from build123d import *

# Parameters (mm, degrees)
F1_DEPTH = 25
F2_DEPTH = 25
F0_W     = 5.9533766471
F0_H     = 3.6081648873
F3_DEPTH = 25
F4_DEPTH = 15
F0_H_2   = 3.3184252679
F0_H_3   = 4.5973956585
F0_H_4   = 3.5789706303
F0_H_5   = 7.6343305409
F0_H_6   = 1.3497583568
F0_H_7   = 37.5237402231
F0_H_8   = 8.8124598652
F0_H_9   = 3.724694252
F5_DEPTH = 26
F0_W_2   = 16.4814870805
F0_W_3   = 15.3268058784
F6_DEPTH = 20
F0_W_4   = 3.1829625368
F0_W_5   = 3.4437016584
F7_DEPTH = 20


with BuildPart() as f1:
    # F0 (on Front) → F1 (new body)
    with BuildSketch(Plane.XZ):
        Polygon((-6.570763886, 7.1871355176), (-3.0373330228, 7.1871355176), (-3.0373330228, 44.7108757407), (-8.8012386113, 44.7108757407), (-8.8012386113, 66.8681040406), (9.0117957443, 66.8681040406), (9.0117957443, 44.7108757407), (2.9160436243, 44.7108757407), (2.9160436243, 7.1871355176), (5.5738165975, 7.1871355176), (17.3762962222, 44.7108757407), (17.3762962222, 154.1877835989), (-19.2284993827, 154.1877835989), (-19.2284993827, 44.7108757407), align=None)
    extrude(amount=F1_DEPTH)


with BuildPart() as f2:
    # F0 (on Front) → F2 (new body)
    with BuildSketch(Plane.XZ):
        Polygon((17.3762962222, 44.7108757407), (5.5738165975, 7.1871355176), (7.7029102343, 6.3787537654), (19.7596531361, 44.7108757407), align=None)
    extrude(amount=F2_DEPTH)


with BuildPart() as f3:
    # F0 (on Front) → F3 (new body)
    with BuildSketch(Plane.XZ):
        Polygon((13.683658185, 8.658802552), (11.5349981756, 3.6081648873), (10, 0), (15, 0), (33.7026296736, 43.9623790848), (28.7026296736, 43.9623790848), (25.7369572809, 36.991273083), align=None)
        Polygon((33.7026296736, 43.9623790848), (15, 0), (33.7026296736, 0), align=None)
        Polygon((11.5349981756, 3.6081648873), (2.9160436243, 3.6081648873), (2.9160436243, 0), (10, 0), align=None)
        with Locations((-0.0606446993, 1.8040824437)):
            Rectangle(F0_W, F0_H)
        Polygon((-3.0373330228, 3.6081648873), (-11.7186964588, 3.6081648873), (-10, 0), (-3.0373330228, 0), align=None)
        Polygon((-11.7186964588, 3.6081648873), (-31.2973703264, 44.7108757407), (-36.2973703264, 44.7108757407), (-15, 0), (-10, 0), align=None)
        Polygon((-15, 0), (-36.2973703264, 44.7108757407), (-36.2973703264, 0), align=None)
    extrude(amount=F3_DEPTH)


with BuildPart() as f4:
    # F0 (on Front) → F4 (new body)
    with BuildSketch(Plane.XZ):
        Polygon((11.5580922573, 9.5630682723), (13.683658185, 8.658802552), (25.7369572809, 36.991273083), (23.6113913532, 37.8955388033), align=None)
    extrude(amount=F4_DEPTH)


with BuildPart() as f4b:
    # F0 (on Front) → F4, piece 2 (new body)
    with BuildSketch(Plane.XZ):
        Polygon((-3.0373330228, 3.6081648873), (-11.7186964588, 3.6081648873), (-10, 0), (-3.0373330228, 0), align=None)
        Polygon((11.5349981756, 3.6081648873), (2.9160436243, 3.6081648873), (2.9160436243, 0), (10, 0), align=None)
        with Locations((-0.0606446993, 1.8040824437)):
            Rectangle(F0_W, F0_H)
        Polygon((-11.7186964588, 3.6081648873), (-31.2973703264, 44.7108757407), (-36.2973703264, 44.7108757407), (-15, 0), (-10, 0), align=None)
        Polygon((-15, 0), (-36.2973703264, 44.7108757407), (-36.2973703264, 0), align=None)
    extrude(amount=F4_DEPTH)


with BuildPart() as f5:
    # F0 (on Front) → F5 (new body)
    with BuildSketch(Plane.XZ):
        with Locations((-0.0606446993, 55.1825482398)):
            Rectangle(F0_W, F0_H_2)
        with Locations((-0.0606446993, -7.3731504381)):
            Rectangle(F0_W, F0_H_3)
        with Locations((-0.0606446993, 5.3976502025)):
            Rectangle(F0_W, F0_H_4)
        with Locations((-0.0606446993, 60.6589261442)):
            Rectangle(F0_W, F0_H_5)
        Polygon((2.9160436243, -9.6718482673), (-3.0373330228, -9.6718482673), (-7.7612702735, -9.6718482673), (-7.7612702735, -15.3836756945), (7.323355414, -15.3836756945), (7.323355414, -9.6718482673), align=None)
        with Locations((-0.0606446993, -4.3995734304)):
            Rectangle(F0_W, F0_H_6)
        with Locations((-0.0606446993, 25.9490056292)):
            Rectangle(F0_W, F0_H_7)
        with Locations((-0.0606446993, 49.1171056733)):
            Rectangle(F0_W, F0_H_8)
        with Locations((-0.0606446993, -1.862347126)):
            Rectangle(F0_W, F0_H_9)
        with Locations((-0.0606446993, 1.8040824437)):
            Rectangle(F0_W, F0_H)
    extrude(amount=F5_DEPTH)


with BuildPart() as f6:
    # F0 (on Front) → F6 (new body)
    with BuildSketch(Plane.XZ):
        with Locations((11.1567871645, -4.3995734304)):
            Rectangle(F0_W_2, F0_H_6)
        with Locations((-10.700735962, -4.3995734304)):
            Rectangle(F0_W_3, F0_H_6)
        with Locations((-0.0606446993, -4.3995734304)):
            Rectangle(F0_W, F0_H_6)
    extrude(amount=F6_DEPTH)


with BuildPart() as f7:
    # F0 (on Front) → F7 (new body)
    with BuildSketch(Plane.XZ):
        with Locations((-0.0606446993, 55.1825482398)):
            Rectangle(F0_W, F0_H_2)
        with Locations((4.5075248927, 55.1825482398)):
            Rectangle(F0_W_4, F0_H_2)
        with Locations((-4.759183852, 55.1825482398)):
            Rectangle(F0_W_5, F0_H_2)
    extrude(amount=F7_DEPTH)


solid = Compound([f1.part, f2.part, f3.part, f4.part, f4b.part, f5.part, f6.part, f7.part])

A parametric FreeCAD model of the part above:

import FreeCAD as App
import Part
import Sketcher


def add_polygon(sketch, points):
    """Adds a closed chain of lines whose ends are joined by coincident constraints."""
    first, n = sketch.GeometryCount, len(points)
    for a, b in zip(points, points[1:] + points[:1]):
        sketch.addGeometry(Part.LineSegment(App.Vector(*a, 0), App.Vector(*b, 0)), False)
    for i in range(n):
        sketch.addConstraint(Sketcher.Constraint("Coincident", first + i, 2, first + (i + 1) % n, 1))

doc = App.newDocument("Part")
params = doc.addObject("Spreadsheet::Sheet", "Params")
for row, (alias, value) in enumerate([
    ("pad1_length", "25 mm"),
    ("pad2_length", "25 mm"),
    ("sketch3_width", "5 mm"),
    ("pad3_length", "25 mm"),
    ("pad4_length", "15 mm"),
    ("sketch5_width", "5 mm"),
    ("pad5_length", "15 mm"),
    ("pad6_length", "26 mm"),
    ("pad7_length", "20 mm"),
    ("pad8_length", "20 mm"),
], start=1):
    params.set(f"A{row}", alias)
    params.set(f"B{row}", "=" + value)
    params.setAlias(f"B{row}", alias)

body = doc.addObject("PartDesign::Body", "Body")

# Sketch on XZ plane
sketch1 = doc.addObject("Sketcher::SketchObject", "Sketch")
body.addObject(sketch1)
sketch1.AttachmentSupport = (doc.XZ_Plane, [""])
sketch1.MapMode = "FlatFace"
add_polygon(sketch1, [(-6.6, 7.2), (-3, 7.2), (-3, 44.7), (-8.8, 44.7), (-8.8, 66.9), (9, 66.9), (9, 44.7), (2.9, 44.7), (2.9, 7.2), (5.6, 7.2), (17.4, 44.7), (17.4, 154.2), (-19.2, 154.2), (-19.2, 44.7)])  # lines 0-13
sketch1.addConstraint(Sketcher.Constraint("Horizontal", 0))
sketch1.addConstraint(Sketcher.Constraint("Vertical", 1))
sketch1.addConstraint(Sketcher.Constraint("Horizontal", 2))
sketch1.addConstraint(Sketcher.Constraint("Vertical", 3))
sketch1.addConstraint(Sketcher.Constraint("Horizontal", 4))
sketch1.addConstraint(Sketcher.Constraint("Vertical", 5))
sketch1.addConstraint(Sketcher.Constraint("Horizontal", 6))
sketch1.addConstraint(Sketcher.Constraint("Vertical", 7))
sketch1.addConstraint(Sketcher.Constraint("Horizontal", 8))
sketch1.addConstraint(Sketcher.Constraint("Vertical", 10))
sketch1.addConstraint(Sketcher.Constraint("Horizontal", 11))
sketch1.addConstraint(Sketcher.Constraint("Vertical", 12))
sketch1.addConstraint(Sketcher.Constraint("Horizontal", 2, 2, 5, 2))
sketch1.addConstraint(Sketcher.Constraint("Horizontal", 0, 2, 7, 2))
sketch1.addConstraint(Sketcher.Constraint("Horizontal", 6, 2, 9, 2))
sketch1.addConstraint(Sketcher.Constraint("Horizontal", 9, 2, 12, 2))
sketch1.addConstraint(Sketcher.Constraint("DistanceX", 0, 1, 0, 2, 3.533431))
sketch1.addConstraint(Sketcher.Constraint("DistanceY", 1, 1, 1, 2, 37.52374))
sketch1.addConstraint(Sketcher.Constraint("DistanceY", 3, 1, 3, 2, 22.157228))
sketch1.addConstraint(Sketcher.Constraint("DistanceX", 11, 2, -1, 1, 19.228499))
sketch1.addConstraint(Sketcher.Constraint("DistanceX", 5, 2, 9, 2, 8.3645))
sketch1.addConstraint(Sketcher.Constraint("Distance", 9, 39.336111))
sketch1.addConstraint(Sketcher.Constraint("Distance", 13, 39.601128))
sketch1.addConstraint(Sketcher.Constraint("DistanceX", 2, 2, 2, 1, 5.763906))
sketch1.addConstraint(Sketcher.Constraint("DistanceX", 4, 1, 4, 2, 17.813034))
sketch1.addConstraint(Sketcher.Constraint("DistanceX", 6, 2, 6, 1, 6.095752))
sketch1.addConstraint(Sketcher.Constraint("DistanceY", 10, 1, 10, 2, 109.476908))
sketch1.addConstraint(Sketcher.Constraint("DistanceY", -1, 1, 0, 2, 7.187136))
pad1 = doc.addObject("PartDesign::Pad", "Pad")
body.addObject(pad1)
pad1.Profile = sketch1
pad1.setExpression("Length", "Params.pad1_length")
body2 = doc.addObject("PartDesign::Body", "Body001")

# Sketch on XZ plane
sketch2 = doc.addObject("Sketcher::SketchObject", "Sketch001")
body2.addObject(sketch2)
sketch2.AttachmentSupport = (doc.getObject("XZ_Plane001"), [""])
sketch2.MapMode = "FlatFace"
add_polygon(sketch2, [(17.4, 44.7), (5.6, 7.2), (7.7, 6.4), (19.8, 44.7)])  # lines 0-3
sketch2.addConstraint(Sketcher.Constraint("Horizontal", 3))
sketch2.addConstraint(Sketcher.Constraint("Parallel", 0, 2))
sketch2.addConstraint(Sketcher.Constraint("Distance", 0, 39.336111))
sketch2.addConstraint(Sketcher.Constraint("DistanceX", 3, 2, 3, 1, 2.383357))
sketch2.addConstraint(Sketcher.Constraint("DistanceX", -1, 1, 1, 2, 7.70291))
sketch2.addConstraint(Sketcher.Constraint("DistanceY", 1, 2, 0, 2, 0.808382))
sketch2.addConstraint(Sketcher.Constraint("DistanceY", 0, 2, 2, 2, 37.52374))
sketch2.addConstraint(Sketcher.Constraint("DistanceY", -1, 1, 0, 2, 7.187136))
pad2 = doc.addObject("PartDesign::Pad", "Pad001")
body2.addObject(pad2)
pad2.Profile = sketch2
pad2.setExpression("Length", "Params.pad2_length")
body3 = doc.addObject("PartDesign::Body", "Body002")

# Sketch on XZ plane
sketch3 = doc.addObject("Sketcher::SketchObject", "Sketch002")
body3.addObject(sketch3)
sketch3.AttachmentSupport = (doc.getObject("XZ_Plane002"), [""])
sketch3.MapMode = "FlatFace"
add_polygon(sketch3, [(14, 9), (12, 4), (3, 4), (-3, 4), (-12, 4), (-31, 45), (-36, 45), (-36, 0), (-15, 0), (-3, 0), (3, 0), (34, 0), (34, 44), (29, 44), (26, 37)])  # lines 0-14
sketch3.addConstraint(Sketcher.Constraint("Horizontal", 1))
sketch3.addConstraint(Sketcher.Constraint("Horizontal", 2))
sketch3.addConstraint(Sketcher.Constraint("Horizontal", 3))
sketch3.addConstraint(Sketcher.Constraint("Horizontal", 5))
sketch3.addConstraint(Sketcher.Constraint("Vertical", 6))
sketch3.addConstraint(Sketcher.Constraint("Horizontal", 7))
sketch3.addConstraint(Sketcher.Constraint("Horizontal", 8))
sketch3.addConstraint(Sketcher.Constraint("Horizontal", 9))
sketch3.addConstraint(Sketcher.Constraint("Horizontal", 10))
sketch3.addConstraint(Sketcher.Constraint("Vertical", 11))
sketch3.addConstraint(Sketcher.Constraint("Horizontal", 12))
sketch3.addConstraint(Sketcher.Constraint("PointOnObject", 6, 2, -1))
sketch3.addConstraint(Sketcher.Constraint("Parallel", 0, 13))
sketch3.addConstraint(Sketcher.Constraint("Parallel", 13, 14))
sketch3.addConstraint(Sketcher.Constraint("Vertical", 2, 2, 8, 2))
sketch3.addConstraint(Sketcher.Constraint("Vertical", 1, 2, 9, 2))
sketch3.addConstraint(Sketcher.Constraint("Equal", 5, 12))
sketch3.addConstraint(Sketcher.Constraint("DistanceX", 5, 2, 5, 1, 5.0))
sketch3.addConstraint(Sketcher.Constraint("DistanceX", 7, 2, -1, 1, 15.0))
sketch3.addConstraint(Sketcher.Constraint("DistanceX", -1, 1, 0, 2, 11.534998))
sketch3.addConstraint(Sketcher.Constraint("DistanceX", 7, 1, 7, 2, 21.29737))
sketch3.addConstraint(Sketcher.Constraint("DistanceY", 11, 1, 11, 2, 43.962379))
sketch3.addConstraint(Sketcher.Constraint("Distance", 13, 7.57572))
sketch3.addConstraint(Sketcher.Constraint("DistanceX", 1, 2, 1, 1, 8.618955))
sketch3.addConstraint(Sketcher.Constraint("DistanceX", 2, 2, 2, 1, 5.953377))
sketch3.addConstraint(Sketcher.Constraint("DistanceX", 3, 2, 3, 1, 8.681363))
sketch3.addConstraint(Sketcher.Constraint("DistanceX", 10, 1, 10, 2, 30.786586))
sketch3.addConstraint(Sketcher.Constraint("DistanceY", 6, 2, 6, 1, 44.710876))
sketch3.addConstraint(Sketcher.Constraint("DistanceX", -1, 1, 14, 2, 13.683658))
sketch3.addConstraint(Sketcher.Constraint("DistanceY", 3, 2, 4, 2, 41.102711))
sketch3.setExpression("Constraints[32]", "Params.sketch3_width")
pad3 = doc.addObject("PartDesign::Pad", "Pad002")
body3.addObject(pad3)
pad3.Profile = sketch3
pad3.setExpression("Length", "Params.pad3_length")
body4 = doc.addObject("PartDesign::Body", "Body003")

# Sketch on XZ plane
sketch4 = doc.addObject("Sketcher::SketchObject", "Sketch003")
body4.addObject(sketch4)
sketch4.AttachmentSupport = (doc.getObject("XZ_Plane003"), [""])
sketch4.MapMode = "FlatFace"
add_polygon(sketch4, [(11.558092, 9.563068), (13.683658, 8.658803), (25.736957, 36.991273), (23.611391, 37.895539)])  # lines 0-3
sketch4.addConstraint(Sketcher.Constraint("DistanceX", 0, 2, 1, 2, 12.053299))
sketch4.addConstraint(Sketcher.Constraint("DistanceX", 3, 2, 2, 2, 12.053299))
sketch4.addConstraint(Sketcher.Constraint("Distance", 0, 2.309919))
sketch4.addConstraint(Sketcher.Constraint("Distance", 2, 2.309919))
sketch4.addConstraint(Sketcher.Constraint("DistanceX", -1, 1, 0, 2, 13.683658))
sketch4.addConstraint(Sketcher.Constraint("DistanceX", -1, 1, 2, 2, 23.611391))
sketch4.addConstraint(Sketcher.Constraint("DistanceY", -1, 1, 2, 2, 37.895539))
sketch4.addConstraint(Sketcher.Constraint("DistanceY", -1, 1, 3, 2, 9.563068))
pad4 = doc.addObject("PartDesign::Pad", "Pad003")
body4.addObject(pad4)
pad4.Profile = sketch4
pad4.setExpression("Length", "Params.pad4_length")
body5 = doc.addObject("PartDesign::Body", "Body004")

# Sketch on XZ plane
sketch5 = doc.addObject("Sketcher::SketchObject", "Sketch004")
body5.addObject(sketch5)
sketch5.AttachmentSupport = (doc.getObject("XZ_Plane004"), [""])
sketch5.MapMode = "FlatFace"
add_polygon(sketch5, [(-3, 3.6), (-11.7, 3.6), (-31.3, 44.7), (-36.3, 44.7), (-36.3, 0), (-15, 0), (-3, 0), (2.9, 0), (10, 0), (11.5, 3.6), (2.9, 3.6)])  # lines 0-10
sketch5.addConstraint(Sketcher.Constraint("Horizontal", 0))
sketch5.addConstraint(Sketcher.Constraint("Horizontal", 2))
sketch5.addConstraint(Sketcher.Constraint("Vertical", 3))
sketch5.addConstraint(Sketcher.Constraint("Horizontal", 4))
sketch5.addConstraint(Sketcher.Constraint("Horizontal", 5))
sketch5.addConstraint(Sketcher.Constraint("Horizontal", 6))
sketch5.addConstraint(Sketcher.Constraint("Horizontal", 7))
sketch5.addConstraint(Sketcher.Constraint("Horizontal", 9))
sketch5.addConstraint(Sketcher.Constraint("Horizontal", 10))
sketch5.addConstraint(Sketcher.Constraint("PointOnObject", 3, 2, -1))
sketch5.addConstraint(Sketcher.Constraint("Vertical", 6, 2, 9, 2))
sketch5.addConstraint(Sketcher.Constraint("Vertical", 5, 2, 10, 2))
sketch5.addConstraint(Sketcher.Constraint("DistanceX", 2, 2, 2, 1, 5.0))
sketch5.addConstraint(Sketcher.Constraint("DistanceX", 4, 2, -1, 1, 15.0))
sketch5.addConstraint(Sketcher.Constraint("DistanceX", -1, 1, 7, 2, 10.0))
sketch5.addConstraint(Sketcher.Constraint("DistanceX", -1, 1, 8, 2, 11.534998))
sketch5.addConstraint(Sketcher.Constraint("DistanceX", 4, 1, 4, 2, 21.29737))
sketch5.addConstraint(Sketcher.Constraint("DistanceX", 0, 2, 0, 1, 8.681363))
sketch5.addConstraint(Sketcher.Constraint("DistanceX", 5, 1, 5, 2, 11.962667))
sketch5.addConstraint(Sketcher.Constraint("DistanceX", 6, 1, 6, 2, 5.953377))
sketch5.addConstraint(Sketcher.Constraint("DistanceY", 3, 2, 3, 1, 44.710876))
sketch5.addConstraint(Sketcher.Constraint("DistanceY", 0, 2, 1, 2, 41.102711))
sketch5.setExpression("Constraints[23]", "Params.sketch5_width")
pad5 = doc.addObject("PartDesign::Pad", "Pad004")
body5.addObject(pad5)
pad5.Profile = sketch5
pad5.setExpression("Length", "Params.pad5_length")
body6 = doc.addObject("PartDesign::Body", "Body005")

# Sketch on XZ plane
sketch6 = doc.addObject("Sketcher::SketchObject", "Sketch005")
body6.addObject(sketch6)
sketch6.AttachmentSupport = (doc.getObject("XZ_Plane005"), [""])
sketch6.MapMode = "FlatFace"
add_polygon(sketch6, [(2.9, 64.5), (-3, 64.5), (-3, -3.7), (-3, -9.7), (-7.8, -9.7), (-7.8, -15.4), (7.3, -15.4), (7.3, -9.7), (2.9, -9.7), (2.9, -3.7)])  # lines 0-9
sketch6.addConstraint(Sketcher.Constraint("Horizontal", 0))
sketch6.addConstraint(Sketcher.Constraint("Vertical", 1))
sketch6.addConstraint(Sketcher.Constraint("Vertical", 2))
sketch6.addConstraint(Sketcher.Constraint("Horizontal", 3))
sketch6.addConstraint(Sketcher.Constraint("Vertical", 4))
sketch6.addConstraint(Sketcher.Constraint("Horizontal", 5))
sketch6.addConstraint(Sketcher.Constraint("Vertical", 6))
sketch6.addConstraint(Sketcher.Constraint("Horizontal", 7))
sketch6.addConstraint(Sketcher.Constraint("Vertical", 8))
sketch6.addConstraint(Sketcher.Constraint("Vertical", 9))
sketch6.addConstraint(Sketcher.Constraint("Horizontal", 3, 2, 6, 2))
sketch6.addConstraint(Sketcher.Constraint("Horizontal", 1, 2, 8, 2))
sketch6.addConstraint(Sketcher.Constraint("DistanceX", 7, 2, 7, 1, 4.407312))
sketch6.addConstraint(Sketcher.Constraint("DistanceX", 0, 2, 0, 1, 5.953377))
sketch6.addConstraint(Sketcher.Constraint("DistanceX", 3, 2, 3, 1, 4.723937))
sketch6.addConstraint(Sketcher.Constraint("DistanceY", 1, 2, 1, 1, 68.200786))
sketch6.addConstraint(Sketcher.Constraint("DistanceY", 2, 2, 2, 1, 5.947154))
sketch6.addConstraint(Sketcher.Constraint("DistanceY", 4, 2, 4, 1, 5.711827))
sketch6.addConstraint(Sketcher.Constraint("DistanceY", -1, 1, 0, 2, 64.476091))
sketch6.addConstraint(Sketcher.Constraint("DistanceX", 3, 2, -1, 1, 7.76127))
pad6 = doc.addObject("PartDesign::Pad", "Pad005")
body6.addObject(pad6)
pad6.Profile = sketch6
pad6.setExpression("Length", "Params.pad6_length")
body7 = doc.addObject("PartDesign::Body", "Body006")

# Sketch on XZ plane
sketch7 = doc.addObject("Sketcher::SketchObject", "Sketch006")
body7.addObject(sketch7)
sketch7.AttachmentSupport = (doc.getObject("XZ_Plane006"), [""])
sketch7.MapMode = "FlatFace"
add_polygon(sketch7, [(19.4, -5.1), (19.4, -3.7), (-18.4, -3.7), (-18.4, -5.1)])  # lines 0-3
sketch7.addConstraint(Sketcher.Constraint("Vertical", 0))
sketch7.addConstraint(Sketcher.Constraint("Horizontal", 1))
sketch7.addConstraint(Sketcher.Constraint("Vertical", 2))
sketch7.addConstraint(Sketcher.Constraint("Horizontal", 3))
sketch7.addConstraint(Sketcher.Constraint("DistanceX", 1, 2, 1, 1, 37.76167))
sketch7.addConstraint(Sketcher.Constraint("DistanceY", 0, 1, 0, 2, 1.349758))
sketch7.addConstraint(Sketcher.Constraint("DistanceX", -1, 1, 0, 2, 19.397531))
sketch7.addConstraint(Sketcher.Constraint("DistanceY", 0, 2, -1, 1, 3.724694))
pad7 = doc.addObject("PartDesign::Pad", "Pad006")
body7.addObject(pad7)
pad7.Profile = sketch7
pad7.setExpression("Length", "Params.pad7_length")
body8 = doc.addObject("PartDesign::Body", "Body007")

# Sketch on XZ plane
sketch8 = doc.addObject("Sketcher::SketchObject", "Sketch007")
body8.addObject(sketch8)
sketch8.AttachmentSupport = (doc.getObject("XZ_Plane007"), [""])
sketch8.MapMode = "FlatFace"
add_polygon(sketch8, [(6.1, 53.5), (6.1, 56.8), (-6.5, 56.8), (-6.5, 53.5)])  # lines 0-3
sketch8.addConstraint(Sketcher.Constraint("Vertical", 0))
sketch8.addConstraint(Sketcher.Constraint("Horizontal", 1))
sketch8.addConstraint(Sketcher.Constraint("Vertical", 2))
sketch8.addConstraint(Sketcher.Constraint("Horizontal", 3))
sketch8.addConstraint(Sketcher.Constraint("DistanceX", 1, 2, 1, 1, 12.580041))
sketch8.addConstraint(Sketcher.Constraint("DistanceY", 0, 1, 0, 2, 3.318425))
sketch8.addConstraint(Sketcher.Constraint("DistanceY", -1, 1, 0, 2, 56.841761))
sketch8.addConstraint(Sketcher.Constraint("DistanceX", -1, 1, 0, 2, 6.099006))
pad8 = doc.addObject("PartDesign::Pad", "Pad007")
body8.addObject(pad8)
pad8.Profile = sketch8
pad8.setExpression("Length", "Params.pad8_length")

doc.recompute()
